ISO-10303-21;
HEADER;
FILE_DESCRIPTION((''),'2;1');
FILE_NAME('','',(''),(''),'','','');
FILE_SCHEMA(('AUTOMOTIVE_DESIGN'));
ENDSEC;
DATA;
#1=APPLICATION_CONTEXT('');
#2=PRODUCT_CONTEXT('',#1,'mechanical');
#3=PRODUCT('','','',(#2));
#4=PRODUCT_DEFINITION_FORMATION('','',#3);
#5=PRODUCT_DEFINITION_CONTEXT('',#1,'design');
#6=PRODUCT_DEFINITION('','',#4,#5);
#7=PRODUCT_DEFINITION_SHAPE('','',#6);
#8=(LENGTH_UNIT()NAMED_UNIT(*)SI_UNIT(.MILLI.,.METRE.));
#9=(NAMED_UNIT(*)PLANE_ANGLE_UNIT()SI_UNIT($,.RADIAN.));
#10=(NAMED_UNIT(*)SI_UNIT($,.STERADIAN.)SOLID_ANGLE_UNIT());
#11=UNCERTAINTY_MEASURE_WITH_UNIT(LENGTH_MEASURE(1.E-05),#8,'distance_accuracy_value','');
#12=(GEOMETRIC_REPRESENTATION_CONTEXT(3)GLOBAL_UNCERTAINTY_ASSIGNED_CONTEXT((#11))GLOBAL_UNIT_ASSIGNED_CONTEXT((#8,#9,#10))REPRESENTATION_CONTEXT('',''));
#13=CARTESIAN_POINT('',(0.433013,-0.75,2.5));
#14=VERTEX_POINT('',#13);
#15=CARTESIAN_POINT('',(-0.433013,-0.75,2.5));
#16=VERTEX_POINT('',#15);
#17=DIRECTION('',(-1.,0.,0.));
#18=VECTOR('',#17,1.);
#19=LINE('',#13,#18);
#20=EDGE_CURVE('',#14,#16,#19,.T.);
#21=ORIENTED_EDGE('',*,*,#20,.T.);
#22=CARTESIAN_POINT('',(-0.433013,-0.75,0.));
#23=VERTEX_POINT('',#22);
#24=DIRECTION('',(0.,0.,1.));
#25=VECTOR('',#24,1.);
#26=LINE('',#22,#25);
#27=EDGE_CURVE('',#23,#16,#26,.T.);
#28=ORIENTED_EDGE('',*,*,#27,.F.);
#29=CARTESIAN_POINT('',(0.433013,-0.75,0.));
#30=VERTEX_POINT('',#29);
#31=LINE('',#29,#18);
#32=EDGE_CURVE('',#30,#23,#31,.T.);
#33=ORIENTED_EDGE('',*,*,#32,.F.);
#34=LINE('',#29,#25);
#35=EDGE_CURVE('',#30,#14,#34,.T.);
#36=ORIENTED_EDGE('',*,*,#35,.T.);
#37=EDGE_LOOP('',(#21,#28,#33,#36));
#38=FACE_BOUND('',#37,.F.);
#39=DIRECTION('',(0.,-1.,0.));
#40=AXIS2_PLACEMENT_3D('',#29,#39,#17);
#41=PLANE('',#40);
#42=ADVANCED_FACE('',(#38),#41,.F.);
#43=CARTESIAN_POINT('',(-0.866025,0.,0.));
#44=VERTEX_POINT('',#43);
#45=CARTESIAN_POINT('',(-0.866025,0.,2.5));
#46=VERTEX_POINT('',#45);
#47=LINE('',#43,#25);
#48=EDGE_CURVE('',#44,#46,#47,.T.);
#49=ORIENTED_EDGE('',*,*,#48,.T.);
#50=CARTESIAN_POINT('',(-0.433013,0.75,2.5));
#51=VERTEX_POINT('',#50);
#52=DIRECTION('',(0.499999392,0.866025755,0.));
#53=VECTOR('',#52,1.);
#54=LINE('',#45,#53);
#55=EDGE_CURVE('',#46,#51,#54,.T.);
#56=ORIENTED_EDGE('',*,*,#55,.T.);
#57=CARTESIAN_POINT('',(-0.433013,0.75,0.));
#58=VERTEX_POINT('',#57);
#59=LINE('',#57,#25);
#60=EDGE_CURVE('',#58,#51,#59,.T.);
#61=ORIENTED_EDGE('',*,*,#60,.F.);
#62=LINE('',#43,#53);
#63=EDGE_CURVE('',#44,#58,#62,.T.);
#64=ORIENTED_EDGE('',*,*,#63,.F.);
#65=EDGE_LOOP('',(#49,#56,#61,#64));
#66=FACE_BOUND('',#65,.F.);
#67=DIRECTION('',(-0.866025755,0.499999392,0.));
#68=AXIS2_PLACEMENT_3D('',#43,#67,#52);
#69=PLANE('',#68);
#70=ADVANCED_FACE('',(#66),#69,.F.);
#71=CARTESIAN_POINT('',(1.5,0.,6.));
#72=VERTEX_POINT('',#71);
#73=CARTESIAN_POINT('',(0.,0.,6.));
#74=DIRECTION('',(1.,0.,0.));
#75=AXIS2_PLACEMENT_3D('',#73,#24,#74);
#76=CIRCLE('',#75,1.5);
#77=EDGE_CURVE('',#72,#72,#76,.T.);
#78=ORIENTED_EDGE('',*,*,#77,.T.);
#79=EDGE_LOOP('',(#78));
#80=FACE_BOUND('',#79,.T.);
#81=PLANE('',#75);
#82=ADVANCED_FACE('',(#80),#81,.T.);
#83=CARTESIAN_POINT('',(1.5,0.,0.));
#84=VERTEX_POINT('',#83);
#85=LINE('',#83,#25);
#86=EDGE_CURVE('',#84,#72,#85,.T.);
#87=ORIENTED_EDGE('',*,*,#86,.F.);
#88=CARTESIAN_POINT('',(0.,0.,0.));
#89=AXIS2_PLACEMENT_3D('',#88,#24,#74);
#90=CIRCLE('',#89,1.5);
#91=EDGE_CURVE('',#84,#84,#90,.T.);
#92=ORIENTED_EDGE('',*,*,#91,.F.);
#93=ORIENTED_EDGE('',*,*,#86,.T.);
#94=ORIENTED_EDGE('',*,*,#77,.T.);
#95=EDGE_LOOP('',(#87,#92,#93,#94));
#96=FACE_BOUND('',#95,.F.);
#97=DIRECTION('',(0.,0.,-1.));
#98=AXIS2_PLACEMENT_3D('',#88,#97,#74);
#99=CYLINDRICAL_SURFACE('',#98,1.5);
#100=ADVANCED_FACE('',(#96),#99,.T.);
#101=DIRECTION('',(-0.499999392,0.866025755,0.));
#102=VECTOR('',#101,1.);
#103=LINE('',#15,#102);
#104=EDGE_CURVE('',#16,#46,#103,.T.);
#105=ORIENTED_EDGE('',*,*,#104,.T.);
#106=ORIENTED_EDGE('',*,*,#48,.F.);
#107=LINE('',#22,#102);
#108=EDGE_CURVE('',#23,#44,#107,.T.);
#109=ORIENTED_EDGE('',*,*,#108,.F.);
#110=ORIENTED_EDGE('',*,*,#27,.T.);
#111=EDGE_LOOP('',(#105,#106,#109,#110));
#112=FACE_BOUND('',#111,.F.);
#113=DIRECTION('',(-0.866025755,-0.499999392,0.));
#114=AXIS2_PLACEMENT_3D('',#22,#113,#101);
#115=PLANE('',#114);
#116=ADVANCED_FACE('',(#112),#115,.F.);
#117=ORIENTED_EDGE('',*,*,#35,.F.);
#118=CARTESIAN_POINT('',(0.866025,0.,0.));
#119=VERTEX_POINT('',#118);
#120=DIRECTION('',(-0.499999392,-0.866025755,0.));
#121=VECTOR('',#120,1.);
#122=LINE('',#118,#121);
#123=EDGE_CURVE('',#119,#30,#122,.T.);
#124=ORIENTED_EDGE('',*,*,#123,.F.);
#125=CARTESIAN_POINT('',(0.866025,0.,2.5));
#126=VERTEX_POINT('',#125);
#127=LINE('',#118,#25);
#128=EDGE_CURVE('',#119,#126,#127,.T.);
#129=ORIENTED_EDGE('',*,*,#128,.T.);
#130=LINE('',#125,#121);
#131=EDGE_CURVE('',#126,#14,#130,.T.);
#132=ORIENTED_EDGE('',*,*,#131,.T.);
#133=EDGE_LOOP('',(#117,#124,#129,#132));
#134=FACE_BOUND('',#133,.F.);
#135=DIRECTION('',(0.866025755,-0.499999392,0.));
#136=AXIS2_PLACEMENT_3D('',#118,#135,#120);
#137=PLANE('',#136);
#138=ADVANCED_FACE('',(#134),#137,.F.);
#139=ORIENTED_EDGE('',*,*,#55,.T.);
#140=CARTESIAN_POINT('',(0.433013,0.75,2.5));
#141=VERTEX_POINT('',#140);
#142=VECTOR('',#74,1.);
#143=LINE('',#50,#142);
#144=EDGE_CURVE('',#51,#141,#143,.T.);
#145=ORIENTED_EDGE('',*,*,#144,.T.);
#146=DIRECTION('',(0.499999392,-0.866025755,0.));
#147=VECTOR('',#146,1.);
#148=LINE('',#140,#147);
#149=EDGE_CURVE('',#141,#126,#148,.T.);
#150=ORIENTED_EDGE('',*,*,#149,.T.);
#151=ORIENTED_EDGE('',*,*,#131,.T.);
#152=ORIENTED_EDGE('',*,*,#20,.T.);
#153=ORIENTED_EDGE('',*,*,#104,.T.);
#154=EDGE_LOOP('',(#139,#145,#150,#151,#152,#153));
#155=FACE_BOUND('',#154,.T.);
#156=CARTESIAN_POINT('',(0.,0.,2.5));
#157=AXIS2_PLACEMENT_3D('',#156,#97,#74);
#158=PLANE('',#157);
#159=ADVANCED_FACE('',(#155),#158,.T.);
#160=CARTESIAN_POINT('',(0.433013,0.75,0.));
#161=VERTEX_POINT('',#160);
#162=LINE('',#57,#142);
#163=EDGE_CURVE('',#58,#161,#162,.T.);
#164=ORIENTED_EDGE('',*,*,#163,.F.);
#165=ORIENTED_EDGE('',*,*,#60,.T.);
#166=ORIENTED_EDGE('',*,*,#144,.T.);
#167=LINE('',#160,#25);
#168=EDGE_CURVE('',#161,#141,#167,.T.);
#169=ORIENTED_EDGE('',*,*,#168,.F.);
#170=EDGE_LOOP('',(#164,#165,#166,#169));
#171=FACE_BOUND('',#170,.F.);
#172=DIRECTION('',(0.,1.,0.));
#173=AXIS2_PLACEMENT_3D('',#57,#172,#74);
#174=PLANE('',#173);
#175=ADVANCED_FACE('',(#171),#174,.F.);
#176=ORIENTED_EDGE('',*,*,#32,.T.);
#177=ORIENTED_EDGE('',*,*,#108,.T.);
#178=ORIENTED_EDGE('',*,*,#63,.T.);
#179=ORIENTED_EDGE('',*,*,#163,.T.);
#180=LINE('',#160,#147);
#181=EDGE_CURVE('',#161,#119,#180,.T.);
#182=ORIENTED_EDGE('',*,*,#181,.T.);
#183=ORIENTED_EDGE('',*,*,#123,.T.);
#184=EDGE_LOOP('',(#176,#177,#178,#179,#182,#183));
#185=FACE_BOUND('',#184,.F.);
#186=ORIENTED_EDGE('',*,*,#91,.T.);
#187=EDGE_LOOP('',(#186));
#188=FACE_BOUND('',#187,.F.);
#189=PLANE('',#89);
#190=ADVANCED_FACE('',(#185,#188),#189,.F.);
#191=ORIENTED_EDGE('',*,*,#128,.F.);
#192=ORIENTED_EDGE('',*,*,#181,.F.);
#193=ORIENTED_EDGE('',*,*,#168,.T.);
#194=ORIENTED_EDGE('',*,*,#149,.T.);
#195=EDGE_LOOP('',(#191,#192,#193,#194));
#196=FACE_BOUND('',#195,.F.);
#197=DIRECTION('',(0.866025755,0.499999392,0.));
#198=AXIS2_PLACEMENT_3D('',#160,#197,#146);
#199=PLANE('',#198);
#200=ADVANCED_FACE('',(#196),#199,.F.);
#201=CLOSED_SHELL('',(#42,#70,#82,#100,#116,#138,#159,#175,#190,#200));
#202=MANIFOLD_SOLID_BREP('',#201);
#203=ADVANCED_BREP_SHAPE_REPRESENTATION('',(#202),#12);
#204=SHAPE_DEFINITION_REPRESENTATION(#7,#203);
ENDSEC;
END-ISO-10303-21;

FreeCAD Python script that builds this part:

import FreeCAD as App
import Part
import Sketcher
Q = App.Units.Quantity

doc = App.newDocument("Part")
body = doc.addObject("PartDesign::Body", "Body")

# Sketch on XY plane
sketch1 = body.newObject("Sketcher::SketchObject", "Sketch")
sketch1.AttachmentSupport = (doc.getObject("XY_Plane"), [""])
sketch1.MapMode = "FlatFace"
sketch1.addGeometry(Part.Circle(App.Vector(0, 0, 0), App.Vector(0, 0, 1), 1.5), False)
sketch1.addConstraint([
    Sketcher.Constraint("Coincident", 0, 3, -1, 1),
    Sketcher.Constraint("Diameter", 0, Q("3 mm")),
])
pad1 = body.newObject("PartDesign::Pad", "Pad")
pad1.Profile = sketch1
pad1.Length = 6

# Sketch on XY plane
sketch2 = body.newObject("Sketcher::SketchObject", "Sketch001")
sketch2.AttachmentSupport = (doc.getObject("XY_Plane"), [""])
sketch2.MapMode = "FlatFace"
sketch2.addGeometry([
    Part.LineSegment(App.Vector(0.9, 0, 0), App.Vector(0.4, -0.8, 0)),  # 0
    Part.LineSegment(App.Vector(0.4, -0.8, 0), App.Vector(-0.4, -0.8, 0)),  # 1
    Part.LineSegment(App.Vector(-0.4, -0.8, 0), App.Vector(-0.9, 0, 0)),  # 2
    Part.LineSegment(App.Vector(-0.9, 0, 0), App.Vector(-0.4, 0.8, 0)),  # 3
    Part.LineSegment(App.Vector(-0.4, 0.8, 0), App.Vector(0.4, 0.8, 0)),  # 4
    Part.LineSegment(App.Vector(0.4, 0.8, 0), App.Vector(0.9, 0, 0)),  # 5
], False)
sketch2.addConstraint([
    Sketcher.Constraint("Coincident", 0, 2, 1, 1),
    Sketcher.Constraint("Coincident", 1, 2, 2, 1),
    Sketcher.Constraint("Coincident", 2, 2, 3, 1),
    Sketcher.Constraint("Coincident", 3, 2, 4, 1),
    Sketcher.Constraint("Coincident", 4, 2, 5, 1),
    Sketcher.Constraint("Coincident", 5, 2, 0, 1),
    Sketcher.Constraint("Horizontal", 1),
    Sketcher.Constraint("Horizontal", 4),
    Sketcher.Constraint("Symmetric", 0, 2, 3, 2, -1, 1),
    Sketcher.Constraint("Symmetric", 2, 2, 5, 2, -1, 1),
    Sketcher.Constraint("PointOnObject", 2, 2, -1),
    Sketcher.Constraint("Parallel", 2, 5),
    Sketcher.Constraint("Vertical", 1, 2, 3, 2),
    Sketcher.Constraint("DistanceY", 1, 2, 3, 2, Q("1.5 mm")),
    Sketcher.Constraint("DistanceX", 1, 2, 1, 1, Q("0.866026 mm")),
    Sketcher.Constraint("DistanceX", 2, 2, 5, 2, Q("1.73205 mm")),
])
pocket1 = body.newObject("PartDesign::Pocket", "Pocket")
pocket1.Profile = sketch2
pocket1.Length = 2.5
pocket1.Reversed = True

doc.recompute()
